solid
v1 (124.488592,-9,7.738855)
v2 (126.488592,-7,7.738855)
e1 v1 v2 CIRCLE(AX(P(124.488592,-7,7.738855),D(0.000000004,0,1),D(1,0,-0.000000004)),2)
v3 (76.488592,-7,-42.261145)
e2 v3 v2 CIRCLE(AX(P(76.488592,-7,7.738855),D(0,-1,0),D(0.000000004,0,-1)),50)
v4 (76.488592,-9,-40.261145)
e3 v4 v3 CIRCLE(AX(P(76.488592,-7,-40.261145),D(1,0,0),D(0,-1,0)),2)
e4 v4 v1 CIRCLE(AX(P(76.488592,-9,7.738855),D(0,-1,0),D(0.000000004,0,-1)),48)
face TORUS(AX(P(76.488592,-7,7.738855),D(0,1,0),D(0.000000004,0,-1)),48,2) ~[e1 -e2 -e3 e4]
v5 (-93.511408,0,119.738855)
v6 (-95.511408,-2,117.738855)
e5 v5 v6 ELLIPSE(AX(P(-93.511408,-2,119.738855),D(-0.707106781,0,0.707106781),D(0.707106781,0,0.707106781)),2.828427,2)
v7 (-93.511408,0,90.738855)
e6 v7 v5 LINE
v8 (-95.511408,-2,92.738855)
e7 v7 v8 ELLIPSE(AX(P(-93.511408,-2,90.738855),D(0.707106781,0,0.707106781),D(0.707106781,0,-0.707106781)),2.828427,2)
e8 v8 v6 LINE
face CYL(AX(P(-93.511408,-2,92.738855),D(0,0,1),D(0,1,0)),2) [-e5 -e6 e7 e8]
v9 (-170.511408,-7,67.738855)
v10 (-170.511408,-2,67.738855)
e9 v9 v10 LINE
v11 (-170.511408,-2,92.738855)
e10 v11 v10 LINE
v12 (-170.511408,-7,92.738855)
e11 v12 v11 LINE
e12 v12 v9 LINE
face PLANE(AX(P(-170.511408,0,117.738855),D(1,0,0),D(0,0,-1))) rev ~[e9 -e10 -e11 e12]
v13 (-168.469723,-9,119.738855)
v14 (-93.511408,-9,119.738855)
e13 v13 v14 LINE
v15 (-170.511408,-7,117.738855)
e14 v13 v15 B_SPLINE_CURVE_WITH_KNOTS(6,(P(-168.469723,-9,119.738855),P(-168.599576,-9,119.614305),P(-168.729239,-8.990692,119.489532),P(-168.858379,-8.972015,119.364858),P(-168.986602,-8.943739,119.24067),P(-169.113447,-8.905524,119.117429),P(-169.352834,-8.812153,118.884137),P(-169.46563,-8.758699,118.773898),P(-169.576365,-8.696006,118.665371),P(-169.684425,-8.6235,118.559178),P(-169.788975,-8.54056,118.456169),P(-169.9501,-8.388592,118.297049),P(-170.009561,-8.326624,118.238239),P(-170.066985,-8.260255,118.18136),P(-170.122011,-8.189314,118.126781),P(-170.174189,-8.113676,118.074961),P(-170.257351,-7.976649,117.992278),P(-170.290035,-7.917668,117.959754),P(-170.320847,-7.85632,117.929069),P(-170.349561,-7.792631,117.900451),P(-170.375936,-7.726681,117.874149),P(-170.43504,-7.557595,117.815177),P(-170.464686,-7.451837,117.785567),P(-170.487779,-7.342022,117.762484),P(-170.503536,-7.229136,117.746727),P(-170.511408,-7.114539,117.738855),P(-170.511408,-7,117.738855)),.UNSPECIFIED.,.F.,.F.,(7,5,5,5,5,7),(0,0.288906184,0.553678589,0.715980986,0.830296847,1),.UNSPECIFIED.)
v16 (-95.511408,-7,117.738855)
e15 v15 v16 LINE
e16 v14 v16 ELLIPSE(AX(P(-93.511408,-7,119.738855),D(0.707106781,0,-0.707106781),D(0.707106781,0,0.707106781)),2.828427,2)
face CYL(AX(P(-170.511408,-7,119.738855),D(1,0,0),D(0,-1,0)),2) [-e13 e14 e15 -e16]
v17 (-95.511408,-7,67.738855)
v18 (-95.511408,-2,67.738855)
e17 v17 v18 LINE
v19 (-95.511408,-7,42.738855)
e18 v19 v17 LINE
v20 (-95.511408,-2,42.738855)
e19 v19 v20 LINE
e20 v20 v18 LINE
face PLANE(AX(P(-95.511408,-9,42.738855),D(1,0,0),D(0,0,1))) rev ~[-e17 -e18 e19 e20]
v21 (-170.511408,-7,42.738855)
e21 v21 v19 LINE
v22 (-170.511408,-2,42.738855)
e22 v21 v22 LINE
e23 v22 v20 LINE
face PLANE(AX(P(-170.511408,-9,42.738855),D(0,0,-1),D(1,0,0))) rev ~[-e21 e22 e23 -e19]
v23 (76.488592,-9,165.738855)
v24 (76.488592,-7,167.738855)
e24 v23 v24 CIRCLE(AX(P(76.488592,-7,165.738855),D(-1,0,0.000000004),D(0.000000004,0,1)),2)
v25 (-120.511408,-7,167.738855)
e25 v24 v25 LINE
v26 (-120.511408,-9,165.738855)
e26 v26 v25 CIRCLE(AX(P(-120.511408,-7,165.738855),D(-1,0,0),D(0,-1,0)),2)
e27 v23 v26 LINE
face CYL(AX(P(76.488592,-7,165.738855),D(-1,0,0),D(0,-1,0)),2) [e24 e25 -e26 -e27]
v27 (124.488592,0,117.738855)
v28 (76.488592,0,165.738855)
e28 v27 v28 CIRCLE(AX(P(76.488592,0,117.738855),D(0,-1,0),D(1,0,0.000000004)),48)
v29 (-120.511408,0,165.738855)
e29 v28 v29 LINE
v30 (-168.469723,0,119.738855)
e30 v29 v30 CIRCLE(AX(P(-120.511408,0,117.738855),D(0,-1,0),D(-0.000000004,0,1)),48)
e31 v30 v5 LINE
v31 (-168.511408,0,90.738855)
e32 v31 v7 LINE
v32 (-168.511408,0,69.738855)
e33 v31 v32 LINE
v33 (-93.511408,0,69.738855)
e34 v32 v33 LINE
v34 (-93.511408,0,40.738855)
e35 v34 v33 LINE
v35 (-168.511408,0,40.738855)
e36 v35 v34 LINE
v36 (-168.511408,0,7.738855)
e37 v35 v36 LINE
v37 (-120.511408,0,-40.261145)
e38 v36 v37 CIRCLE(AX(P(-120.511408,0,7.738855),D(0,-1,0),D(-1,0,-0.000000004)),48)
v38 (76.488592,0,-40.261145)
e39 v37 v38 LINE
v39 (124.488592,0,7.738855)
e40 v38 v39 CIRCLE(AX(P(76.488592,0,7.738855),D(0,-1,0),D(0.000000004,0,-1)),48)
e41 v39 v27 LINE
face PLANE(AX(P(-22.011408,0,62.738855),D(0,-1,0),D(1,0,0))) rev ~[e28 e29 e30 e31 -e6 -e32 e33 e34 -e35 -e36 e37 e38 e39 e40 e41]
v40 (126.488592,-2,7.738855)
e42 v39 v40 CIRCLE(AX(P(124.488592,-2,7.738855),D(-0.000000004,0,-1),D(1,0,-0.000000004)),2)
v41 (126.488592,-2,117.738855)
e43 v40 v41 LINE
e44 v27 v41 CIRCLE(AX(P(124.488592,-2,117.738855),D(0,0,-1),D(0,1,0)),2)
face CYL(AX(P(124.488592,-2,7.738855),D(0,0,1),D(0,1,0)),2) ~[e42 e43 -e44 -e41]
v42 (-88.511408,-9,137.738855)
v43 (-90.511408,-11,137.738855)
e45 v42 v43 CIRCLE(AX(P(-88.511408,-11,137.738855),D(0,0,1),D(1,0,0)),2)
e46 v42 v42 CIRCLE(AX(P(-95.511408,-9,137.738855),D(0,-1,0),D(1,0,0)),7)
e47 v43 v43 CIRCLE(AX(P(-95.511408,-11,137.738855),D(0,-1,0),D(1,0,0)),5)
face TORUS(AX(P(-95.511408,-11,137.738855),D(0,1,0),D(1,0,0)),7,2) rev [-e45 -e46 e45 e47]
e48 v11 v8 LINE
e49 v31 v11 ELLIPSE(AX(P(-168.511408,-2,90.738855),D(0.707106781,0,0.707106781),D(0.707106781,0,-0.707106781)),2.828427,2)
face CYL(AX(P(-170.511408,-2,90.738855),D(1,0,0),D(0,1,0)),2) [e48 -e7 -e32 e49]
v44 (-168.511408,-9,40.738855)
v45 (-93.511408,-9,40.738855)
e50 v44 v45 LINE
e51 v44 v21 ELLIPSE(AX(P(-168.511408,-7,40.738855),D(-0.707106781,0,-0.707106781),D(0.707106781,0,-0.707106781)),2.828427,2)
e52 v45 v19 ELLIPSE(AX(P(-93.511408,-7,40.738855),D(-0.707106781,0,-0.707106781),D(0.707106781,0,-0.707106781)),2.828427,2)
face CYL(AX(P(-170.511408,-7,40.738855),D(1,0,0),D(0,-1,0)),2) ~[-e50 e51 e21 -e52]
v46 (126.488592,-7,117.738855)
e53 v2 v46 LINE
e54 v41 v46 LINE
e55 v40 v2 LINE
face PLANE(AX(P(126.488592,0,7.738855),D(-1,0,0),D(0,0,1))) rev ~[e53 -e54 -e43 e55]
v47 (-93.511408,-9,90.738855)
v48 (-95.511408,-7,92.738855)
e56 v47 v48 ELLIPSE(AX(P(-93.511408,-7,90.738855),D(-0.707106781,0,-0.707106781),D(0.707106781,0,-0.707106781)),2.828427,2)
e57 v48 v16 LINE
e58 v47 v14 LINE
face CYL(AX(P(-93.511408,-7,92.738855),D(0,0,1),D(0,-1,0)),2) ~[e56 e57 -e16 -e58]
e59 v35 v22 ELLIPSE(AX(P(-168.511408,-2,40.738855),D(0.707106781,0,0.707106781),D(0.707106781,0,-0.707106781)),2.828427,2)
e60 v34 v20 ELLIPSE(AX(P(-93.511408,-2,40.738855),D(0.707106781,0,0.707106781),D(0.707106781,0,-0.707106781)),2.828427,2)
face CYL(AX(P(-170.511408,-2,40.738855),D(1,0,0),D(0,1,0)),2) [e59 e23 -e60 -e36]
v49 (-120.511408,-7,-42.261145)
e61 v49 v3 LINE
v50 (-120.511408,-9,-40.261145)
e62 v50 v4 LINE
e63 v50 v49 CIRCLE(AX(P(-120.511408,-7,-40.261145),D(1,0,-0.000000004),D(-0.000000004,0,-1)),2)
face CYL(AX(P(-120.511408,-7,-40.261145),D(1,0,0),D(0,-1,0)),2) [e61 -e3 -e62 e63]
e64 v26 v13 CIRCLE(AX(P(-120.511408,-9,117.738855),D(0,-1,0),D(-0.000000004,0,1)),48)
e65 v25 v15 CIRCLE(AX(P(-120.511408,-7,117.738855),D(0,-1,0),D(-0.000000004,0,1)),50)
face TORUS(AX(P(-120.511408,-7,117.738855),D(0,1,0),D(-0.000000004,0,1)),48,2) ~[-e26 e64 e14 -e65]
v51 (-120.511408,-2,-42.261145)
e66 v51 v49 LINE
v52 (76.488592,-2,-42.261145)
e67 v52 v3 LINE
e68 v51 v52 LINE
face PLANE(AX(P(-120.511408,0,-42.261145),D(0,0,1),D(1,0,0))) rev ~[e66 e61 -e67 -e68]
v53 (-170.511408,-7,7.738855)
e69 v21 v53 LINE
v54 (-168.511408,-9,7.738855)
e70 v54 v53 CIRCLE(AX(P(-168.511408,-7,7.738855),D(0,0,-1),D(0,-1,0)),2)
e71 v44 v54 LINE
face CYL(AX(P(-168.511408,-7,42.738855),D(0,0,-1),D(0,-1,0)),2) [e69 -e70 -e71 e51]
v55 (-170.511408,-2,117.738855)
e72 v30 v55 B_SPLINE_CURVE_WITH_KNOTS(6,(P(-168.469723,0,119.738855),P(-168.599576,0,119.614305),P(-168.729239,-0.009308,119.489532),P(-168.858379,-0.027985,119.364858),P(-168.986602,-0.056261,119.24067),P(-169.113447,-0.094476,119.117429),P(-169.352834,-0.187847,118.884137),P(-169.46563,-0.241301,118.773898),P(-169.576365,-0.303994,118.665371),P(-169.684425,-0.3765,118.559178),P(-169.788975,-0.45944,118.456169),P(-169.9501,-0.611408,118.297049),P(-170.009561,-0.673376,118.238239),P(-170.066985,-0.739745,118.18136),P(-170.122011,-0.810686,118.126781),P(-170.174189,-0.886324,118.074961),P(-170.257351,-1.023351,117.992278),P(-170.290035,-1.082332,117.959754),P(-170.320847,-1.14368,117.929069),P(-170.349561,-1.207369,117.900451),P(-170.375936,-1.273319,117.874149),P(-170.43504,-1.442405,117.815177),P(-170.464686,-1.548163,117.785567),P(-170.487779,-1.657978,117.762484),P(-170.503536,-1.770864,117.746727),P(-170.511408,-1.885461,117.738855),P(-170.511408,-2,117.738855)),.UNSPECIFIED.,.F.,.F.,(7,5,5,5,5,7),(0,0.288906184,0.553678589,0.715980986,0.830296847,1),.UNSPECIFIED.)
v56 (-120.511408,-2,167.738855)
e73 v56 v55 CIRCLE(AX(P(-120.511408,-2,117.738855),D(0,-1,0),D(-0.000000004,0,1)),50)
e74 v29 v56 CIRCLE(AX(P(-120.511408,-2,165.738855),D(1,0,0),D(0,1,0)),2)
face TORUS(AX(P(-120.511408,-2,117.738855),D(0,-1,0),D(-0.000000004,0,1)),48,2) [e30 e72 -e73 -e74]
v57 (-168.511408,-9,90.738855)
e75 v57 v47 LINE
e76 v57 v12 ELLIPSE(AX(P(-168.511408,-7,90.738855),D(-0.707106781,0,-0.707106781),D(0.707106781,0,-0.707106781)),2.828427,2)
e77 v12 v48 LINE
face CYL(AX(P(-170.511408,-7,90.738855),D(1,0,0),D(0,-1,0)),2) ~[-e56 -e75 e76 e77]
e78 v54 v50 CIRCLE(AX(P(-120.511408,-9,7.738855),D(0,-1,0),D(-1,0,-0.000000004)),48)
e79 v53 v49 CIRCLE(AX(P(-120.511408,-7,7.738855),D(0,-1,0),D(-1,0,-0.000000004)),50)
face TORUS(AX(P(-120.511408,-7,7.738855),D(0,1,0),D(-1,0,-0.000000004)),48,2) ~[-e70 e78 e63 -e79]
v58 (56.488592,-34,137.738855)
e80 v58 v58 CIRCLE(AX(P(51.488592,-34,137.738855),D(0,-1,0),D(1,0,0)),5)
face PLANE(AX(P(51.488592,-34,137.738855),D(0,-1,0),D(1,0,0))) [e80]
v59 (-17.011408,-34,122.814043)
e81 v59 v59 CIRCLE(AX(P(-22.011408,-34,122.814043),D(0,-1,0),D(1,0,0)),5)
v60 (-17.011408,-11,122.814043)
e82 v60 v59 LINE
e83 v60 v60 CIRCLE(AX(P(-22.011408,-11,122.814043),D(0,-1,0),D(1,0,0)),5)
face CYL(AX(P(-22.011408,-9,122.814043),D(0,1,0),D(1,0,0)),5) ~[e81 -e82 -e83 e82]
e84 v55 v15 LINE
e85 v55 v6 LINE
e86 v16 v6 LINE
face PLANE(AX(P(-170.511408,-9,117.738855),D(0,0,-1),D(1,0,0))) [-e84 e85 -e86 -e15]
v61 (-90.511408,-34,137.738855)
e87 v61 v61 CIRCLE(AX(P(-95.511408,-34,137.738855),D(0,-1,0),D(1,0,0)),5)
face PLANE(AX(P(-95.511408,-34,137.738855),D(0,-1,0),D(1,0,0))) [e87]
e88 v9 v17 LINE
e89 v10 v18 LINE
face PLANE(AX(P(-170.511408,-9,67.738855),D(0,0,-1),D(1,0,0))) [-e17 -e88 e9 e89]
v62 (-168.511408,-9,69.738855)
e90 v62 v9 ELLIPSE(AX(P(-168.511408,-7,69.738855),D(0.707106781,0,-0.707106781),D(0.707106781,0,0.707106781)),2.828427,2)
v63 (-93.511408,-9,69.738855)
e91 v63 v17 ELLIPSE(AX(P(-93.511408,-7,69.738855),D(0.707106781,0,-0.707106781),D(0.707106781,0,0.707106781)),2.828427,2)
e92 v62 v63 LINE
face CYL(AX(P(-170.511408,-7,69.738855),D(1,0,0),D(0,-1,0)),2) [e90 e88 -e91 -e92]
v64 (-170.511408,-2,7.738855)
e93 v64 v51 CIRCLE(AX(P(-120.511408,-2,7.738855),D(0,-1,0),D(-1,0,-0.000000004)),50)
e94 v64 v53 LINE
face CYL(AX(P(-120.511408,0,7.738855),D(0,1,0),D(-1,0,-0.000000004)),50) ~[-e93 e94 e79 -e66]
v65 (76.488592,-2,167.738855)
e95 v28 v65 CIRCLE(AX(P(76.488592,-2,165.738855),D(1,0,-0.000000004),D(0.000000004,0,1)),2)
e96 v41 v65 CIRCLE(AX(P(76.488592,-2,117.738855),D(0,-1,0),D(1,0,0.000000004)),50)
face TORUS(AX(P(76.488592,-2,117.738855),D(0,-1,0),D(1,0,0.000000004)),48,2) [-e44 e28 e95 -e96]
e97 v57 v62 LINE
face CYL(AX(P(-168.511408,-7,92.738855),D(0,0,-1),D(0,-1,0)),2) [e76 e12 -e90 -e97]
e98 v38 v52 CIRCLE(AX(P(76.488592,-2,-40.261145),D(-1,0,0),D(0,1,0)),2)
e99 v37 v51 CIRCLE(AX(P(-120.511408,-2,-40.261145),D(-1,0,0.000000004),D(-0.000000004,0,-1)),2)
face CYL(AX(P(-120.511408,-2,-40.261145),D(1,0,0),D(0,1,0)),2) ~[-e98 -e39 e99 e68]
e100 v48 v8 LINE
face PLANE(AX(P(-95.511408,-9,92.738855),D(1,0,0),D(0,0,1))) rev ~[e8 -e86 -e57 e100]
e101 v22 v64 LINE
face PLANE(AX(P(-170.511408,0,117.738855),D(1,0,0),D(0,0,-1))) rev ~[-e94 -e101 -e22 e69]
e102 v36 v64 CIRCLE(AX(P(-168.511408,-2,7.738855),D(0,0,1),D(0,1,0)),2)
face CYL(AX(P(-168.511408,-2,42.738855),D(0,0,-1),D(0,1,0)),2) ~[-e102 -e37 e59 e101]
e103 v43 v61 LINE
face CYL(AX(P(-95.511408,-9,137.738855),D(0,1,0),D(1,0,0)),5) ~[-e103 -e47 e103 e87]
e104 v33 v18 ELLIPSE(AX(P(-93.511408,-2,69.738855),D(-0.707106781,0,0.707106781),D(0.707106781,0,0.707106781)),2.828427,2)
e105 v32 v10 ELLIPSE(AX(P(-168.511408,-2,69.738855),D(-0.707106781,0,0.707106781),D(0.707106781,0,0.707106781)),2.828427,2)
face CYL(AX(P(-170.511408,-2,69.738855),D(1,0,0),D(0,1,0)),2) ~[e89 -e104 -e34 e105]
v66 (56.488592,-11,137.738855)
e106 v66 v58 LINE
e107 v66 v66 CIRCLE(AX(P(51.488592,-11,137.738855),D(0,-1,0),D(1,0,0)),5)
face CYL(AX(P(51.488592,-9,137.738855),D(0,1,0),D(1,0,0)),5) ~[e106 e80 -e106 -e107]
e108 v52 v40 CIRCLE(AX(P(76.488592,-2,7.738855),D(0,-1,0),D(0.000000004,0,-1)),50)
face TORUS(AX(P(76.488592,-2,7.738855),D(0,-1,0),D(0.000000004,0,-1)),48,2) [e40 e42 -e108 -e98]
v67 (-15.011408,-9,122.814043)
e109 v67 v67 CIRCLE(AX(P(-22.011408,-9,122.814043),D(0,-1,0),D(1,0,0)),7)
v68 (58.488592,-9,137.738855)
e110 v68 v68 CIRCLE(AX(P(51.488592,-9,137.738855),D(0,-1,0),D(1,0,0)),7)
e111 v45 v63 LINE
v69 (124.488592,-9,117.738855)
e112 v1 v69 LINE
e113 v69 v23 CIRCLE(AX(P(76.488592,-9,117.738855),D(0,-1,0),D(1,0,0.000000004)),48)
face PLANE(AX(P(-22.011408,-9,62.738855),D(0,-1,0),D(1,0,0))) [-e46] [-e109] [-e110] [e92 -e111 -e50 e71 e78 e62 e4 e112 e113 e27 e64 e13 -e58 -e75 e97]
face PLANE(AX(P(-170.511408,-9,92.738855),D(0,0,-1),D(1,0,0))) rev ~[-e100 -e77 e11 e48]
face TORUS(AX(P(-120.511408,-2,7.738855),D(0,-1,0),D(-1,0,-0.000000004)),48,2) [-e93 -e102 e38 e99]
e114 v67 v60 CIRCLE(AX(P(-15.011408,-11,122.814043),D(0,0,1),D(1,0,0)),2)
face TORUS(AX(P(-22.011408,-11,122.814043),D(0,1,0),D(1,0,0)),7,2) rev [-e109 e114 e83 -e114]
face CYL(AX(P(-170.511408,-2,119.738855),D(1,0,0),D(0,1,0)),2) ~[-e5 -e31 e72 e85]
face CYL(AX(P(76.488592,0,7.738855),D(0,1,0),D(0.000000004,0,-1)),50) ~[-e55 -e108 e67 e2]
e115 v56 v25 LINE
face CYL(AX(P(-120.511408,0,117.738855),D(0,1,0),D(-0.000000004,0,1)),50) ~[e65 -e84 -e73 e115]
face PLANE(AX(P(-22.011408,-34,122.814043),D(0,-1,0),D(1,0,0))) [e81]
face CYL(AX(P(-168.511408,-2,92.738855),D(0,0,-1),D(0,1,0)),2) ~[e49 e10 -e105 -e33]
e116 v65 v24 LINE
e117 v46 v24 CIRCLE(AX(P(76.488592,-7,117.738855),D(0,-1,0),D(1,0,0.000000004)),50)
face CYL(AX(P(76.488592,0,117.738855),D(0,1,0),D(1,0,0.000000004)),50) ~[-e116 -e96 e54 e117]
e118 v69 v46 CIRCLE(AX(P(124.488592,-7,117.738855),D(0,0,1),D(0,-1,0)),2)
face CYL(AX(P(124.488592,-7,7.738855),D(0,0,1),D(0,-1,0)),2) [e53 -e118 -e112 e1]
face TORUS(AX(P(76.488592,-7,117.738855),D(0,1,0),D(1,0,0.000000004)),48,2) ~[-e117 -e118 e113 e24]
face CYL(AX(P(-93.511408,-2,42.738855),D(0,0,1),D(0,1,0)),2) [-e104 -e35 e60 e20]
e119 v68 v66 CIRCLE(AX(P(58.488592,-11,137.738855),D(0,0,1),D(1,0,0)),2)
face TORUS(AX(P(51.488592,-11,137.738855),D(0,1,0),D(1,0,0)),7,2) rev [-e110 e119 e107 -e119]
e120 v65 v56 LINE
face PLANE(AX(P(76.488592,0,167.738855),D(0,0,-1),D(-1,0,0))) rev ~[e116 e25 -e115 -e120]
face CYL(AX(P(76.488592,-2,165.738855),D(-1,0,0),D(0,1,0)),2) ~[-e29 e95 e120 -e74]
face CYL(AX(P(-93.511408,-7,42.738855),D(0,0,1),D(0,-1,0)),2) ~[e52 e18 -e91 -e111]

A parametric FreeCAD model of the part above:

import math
import FreeCAD as App
import Part
import Sketcher
from FreeCAD import Vector


def edges_at(feature, points):
    """Names of the edges that pass closest to the given points."""
    edges = feature.Shape.Edges
    near = lambda p: min(range(len(edges)), key=lambda i: edges[i].distToShape(Part.Vertex(*p))[0])
    return sorted({f"Edge{near(p) + 1}" for p in points})


def add_polygon(sketch, points):
    """Adds a closed chain of lines whose ends are joined by coincident constraints."""
    first, n = sketch.GeometryCount, len(points)
    for a, b in zip(points, points[1:] + points[:1]):
        sketch.addGeometry(Part.LineSegment(App.Vector(*a, 0), App.Vector(*b, 0)), False)
    for i in range(n):
        sketch.addConstraint(Sketcher.Constraint("Coincident", first + i, 2, first + (i + 1) % n, 1))

doc = App.newDocument("Part")
body = doc.addObject("PartDesign::Body", "Body")

sketch1 = doc.addObject("Sketcher::SketchObject", "Sketch")
body.addObject(sketch1)
sketch1.AttachmentSupport = (doc.XZ_Plane, [""])
sketch1.MapMode = "FlatFace"
sketch1.addGeometry([
    Part.LineSegment(Vector(76.488592, 167.738855, 0), Vector(-120.511408, 167.738855, 0)),
    Part.ArcOfCircle(Part.Circle(Vector(-120.511408, 117.738855, 0), Vector(0, 0, 1), 50), math.radians(90), math.radians(180)),
    Part.LineSegment(Vector(-170.511408, 117.738855, 0), Vector(-170.511408, 7.738855, 0)),
    Part.ArcOfCircle(Part.Circle(Vector(-120.511408, 7.738855, 0), Vector(0, 0, 1), 50), math.radians(-180), math.radians(-90)),
    Part.LineSegment(Vector(-120.511408, -42.261145, 0), Vector(76.488592, -42.261145, 0)),
    Part.ArcOfCircle(Part.Circle(Vector(76.488592, 7.738855, 0), Vector(0, 0, 1), 50), math.radians(-90), math.radians(0)),
    Part.LineSegment(Vector(126.488592, 7.738855, 0), Vector(126.488592, 117.738855, 0)),
    Part.ArcOfCircle(Part.Circle(Vector(76.488592, 117.738855, 0), Vector(0, 0, 1), 50), math.radians(0), math.radians(90)),
], False)
sketch1.addConstraint([
    Sketcher.Constraint("Tangent", 0, 2, 1, 1),
    Sketcher.Constraint("Tangent", 1, 2, 2, 1),
    Sketcher.Constraint("Tangent", 2, 2, 3, 1),
    Sketcher.Constraint("Tangent", 3, 2, 4, 1),
    Sketcher.Constraint("Tangent", 4, 2, 5, 1),
    Sketcher.Constraint("Tangent", 5, 2, 6, 1),
    Sketcher.Constraint("Tangent", 6, 2, 7, 1),
    Sketcher.Constraint("Tangent", 7, 2, 0, 1),
    Sketcher.Constraint("Horizontal", 0),
    Sketcher.Constraint("Vertical", 2),
    Sketcher.Constraint("Horizontal", 4),
    Sketcher.Constraint("Vertical", 6),
    Sketcher.Constraint("Equal", 1, 3),
    Sketcher.Constraint("Equal", 3, 5),
    Sketcher.Constraint("Equal", 5, 7),
    Sketcher.Constraint("Radius", 1, 50.0),
    Sketcher.Constraint("DistanceX", 0, 2, 0, 1, 197.0),
    Sketcher.Constraint("DistanceY", 2, 2, 2, 1, 110.0),
    Sketcher.Constraint("DistanceX", -1, 1, 5, 3, 76.488592),
    Sketcher.Constraint("DistanceY", -1, 1, 1, 3, 117.738855),
])
pad1 = doc.addObject("PartDesign::Pad", "Pad")
body.addObject(pad1)
pad1.Profile = sketch1
pad1.Length = 9

sketch2 = doc.addObject("Sketcher::SketchObject", "Sketch001")
body.addObject(sketch2)
sketch2.AttachmentSupport = (doc.XZ_Plane, [""])
sketch2.MapMode = "FlatFace"
sketch2.AttachmentOffset = App.Placement(Vector(0, 0, 9), App.Rotation())
sketch2.addGeometry([
    Part.Circle(Vector(-95.511408, 137.738855, 0), Vector(0, 0, 1), 5),
    Part.Circle(Vector(-22.011408, 122.814043, 0), Vector(0, 0, 1), 5),
    Part.Circle(Vector(51.488592, 137.738855, 0), Vector(0, 0, 1), 5),
], False)
sketch2.addConstraint([
    Sketcher.Constraint("Equal", 0, 1),
    Sketcher.Constraint("Equal", 1, 2),
    Sketcher.Constraint("Horizontal", 0, 3, 2, 3),
    Sketcher.Constraint("Diameter", 0, 10.0),
    Sketcher.Constraint("DistanceX", 0, 3, 2, 3, 147.0),
    Sketcher.Constraint("DistanceX", 0, 3, 1, 3, 73.5),
    Sketcher.Constraint("DistanceX", 0, 3, -1, 1, 95.511408),
    Sketcher.Constraint("DistanceY", -1, 1, 0, 3, 137.738855),
    Sketcher.Constraint("DistanceY", -1, 1, 1, 3, 122.814043),
])
pad2 = doc.addObject("PartDesign::Pad", "Pad001")
body.addObject(pad2)
pad2.Profile = sketch2
pad2.Length = 25

sketch3 = doc.addObject("Sketcher::SketchObject", "Sketch002")
body.addObject(sketch3)
sketch3.AttachmentSupport = (doc.XZ_Plane, [""])
sketch3.MapMode = "FlatFace"
sketch3.AttachmentOffset = App.Placement(Vector(0, 0, 9), App.Rotation())
add_polygon(sketch3, [(-170.511408, 117.738855), (-170.511408, 92.738855), (-95.511408, 92.738855), (-95.511408, 117.738855)])
add_polygon(sketch3, [(-170.511408, 67.738855), (-170.511408, 42.738855), (-95.511408, 42.738855), (-95.511408, 67.738855)])
sketch3.addConstraint([
    Sketcher.Constraint("Vertical", 0),
    Sketcher.Constraint("Horizontal", 1),
    Sketcher.Constraint("Vertical", 2),
    Sketcher.Constraint("Horizontal", 3),
    Sketcher.Constraint("Vertical", 4),
    Sketcher.Constraint("Horizontal", 5),
    Sketcher.Constraint("Vertical", 6),
    Sketcher.Constraint("Horizontal", 7),
    Sketcher.Constraint("Vertical", 3, 2, 4, 2),
    Sketcher.Constraint("Vertical", 2, 2, 5, 2),
    Sketcher.Constraint("Equal", 2, 4),
    Sketcher.Constraint("DistanceX", 1, 1, 1, 2, 75.0),
    Sketcher.Constraint("DistanceY", 0, 2, 0, 1, 25.0),
    Sketcher.Constraint("DistanceY", 4, 2, 0, 2, 50.0),
    Sketcher.Constraint("DistanceX", 1, 2, -1, 1, 95.511408),
    Sketcher.Constraint("DistanceY", -1, 1, 0, 2, 92.738855),
])
pocket1 = doc.addObject("PartDesign::Pocket", "Pocket")
body.addObject(pocket1)
pocket1.Profile = sketch3
pocket1.Length = 25
doc.recompute()

fillet = doc.addObject("PartDesign::Fillet", "Fillet")
body.addObject(fillet)
fillet.Base = (pocket1, edges_at(pocket1, [
    (111.844, -9, -27.616),
    (-22.011, -9, -42.261),
    (-155.867, -9, -27.616),
    (-170.511, -9, 25.239),
    (-133.011, -9, 42.739),
    (-95.511, -9, 55.239),
    (-133.011, -9, 67.739),
    (-170.511, -9, 80.239),
    (-133.011, -9, 92.739),
    (-95.511, -9, 105.239),
    (-133.011, -9, 117.739),
    (-155.867, -9, 153.094),
    (-22.011, -9, 167.739),
    (111.844, -9, 153.094),
    (126.489, -9, 62.739),
    (-27.011, -9, 122.814),
    (-100.511, -9, 137.739),
    (46.489, -9, 137.739),
    (111.844, 0, -27.616),
    (-22.011, 0, -42.261),
    (-155.867, 0, -27.616),
    (-170.511, 0, 25.239),
    (-133.011, 0, 42.739),
    (-95.511, 0, 55.239),
    (-133.011, 0, 67.739),
    (-170.511, 0, 80.239),
    (-133.011, 0, 92.739),
    (-95.511, 0, 105.239),
    (-133.011, 0, 117.739),
    (-155.867, 0, 153.094),
    (-22.011, 0, 167.739),
    (111.844, 0, 153.094),
    (126.489, 0, 62.739),
]))
fillet.Radius = 2

doc.recompute()
